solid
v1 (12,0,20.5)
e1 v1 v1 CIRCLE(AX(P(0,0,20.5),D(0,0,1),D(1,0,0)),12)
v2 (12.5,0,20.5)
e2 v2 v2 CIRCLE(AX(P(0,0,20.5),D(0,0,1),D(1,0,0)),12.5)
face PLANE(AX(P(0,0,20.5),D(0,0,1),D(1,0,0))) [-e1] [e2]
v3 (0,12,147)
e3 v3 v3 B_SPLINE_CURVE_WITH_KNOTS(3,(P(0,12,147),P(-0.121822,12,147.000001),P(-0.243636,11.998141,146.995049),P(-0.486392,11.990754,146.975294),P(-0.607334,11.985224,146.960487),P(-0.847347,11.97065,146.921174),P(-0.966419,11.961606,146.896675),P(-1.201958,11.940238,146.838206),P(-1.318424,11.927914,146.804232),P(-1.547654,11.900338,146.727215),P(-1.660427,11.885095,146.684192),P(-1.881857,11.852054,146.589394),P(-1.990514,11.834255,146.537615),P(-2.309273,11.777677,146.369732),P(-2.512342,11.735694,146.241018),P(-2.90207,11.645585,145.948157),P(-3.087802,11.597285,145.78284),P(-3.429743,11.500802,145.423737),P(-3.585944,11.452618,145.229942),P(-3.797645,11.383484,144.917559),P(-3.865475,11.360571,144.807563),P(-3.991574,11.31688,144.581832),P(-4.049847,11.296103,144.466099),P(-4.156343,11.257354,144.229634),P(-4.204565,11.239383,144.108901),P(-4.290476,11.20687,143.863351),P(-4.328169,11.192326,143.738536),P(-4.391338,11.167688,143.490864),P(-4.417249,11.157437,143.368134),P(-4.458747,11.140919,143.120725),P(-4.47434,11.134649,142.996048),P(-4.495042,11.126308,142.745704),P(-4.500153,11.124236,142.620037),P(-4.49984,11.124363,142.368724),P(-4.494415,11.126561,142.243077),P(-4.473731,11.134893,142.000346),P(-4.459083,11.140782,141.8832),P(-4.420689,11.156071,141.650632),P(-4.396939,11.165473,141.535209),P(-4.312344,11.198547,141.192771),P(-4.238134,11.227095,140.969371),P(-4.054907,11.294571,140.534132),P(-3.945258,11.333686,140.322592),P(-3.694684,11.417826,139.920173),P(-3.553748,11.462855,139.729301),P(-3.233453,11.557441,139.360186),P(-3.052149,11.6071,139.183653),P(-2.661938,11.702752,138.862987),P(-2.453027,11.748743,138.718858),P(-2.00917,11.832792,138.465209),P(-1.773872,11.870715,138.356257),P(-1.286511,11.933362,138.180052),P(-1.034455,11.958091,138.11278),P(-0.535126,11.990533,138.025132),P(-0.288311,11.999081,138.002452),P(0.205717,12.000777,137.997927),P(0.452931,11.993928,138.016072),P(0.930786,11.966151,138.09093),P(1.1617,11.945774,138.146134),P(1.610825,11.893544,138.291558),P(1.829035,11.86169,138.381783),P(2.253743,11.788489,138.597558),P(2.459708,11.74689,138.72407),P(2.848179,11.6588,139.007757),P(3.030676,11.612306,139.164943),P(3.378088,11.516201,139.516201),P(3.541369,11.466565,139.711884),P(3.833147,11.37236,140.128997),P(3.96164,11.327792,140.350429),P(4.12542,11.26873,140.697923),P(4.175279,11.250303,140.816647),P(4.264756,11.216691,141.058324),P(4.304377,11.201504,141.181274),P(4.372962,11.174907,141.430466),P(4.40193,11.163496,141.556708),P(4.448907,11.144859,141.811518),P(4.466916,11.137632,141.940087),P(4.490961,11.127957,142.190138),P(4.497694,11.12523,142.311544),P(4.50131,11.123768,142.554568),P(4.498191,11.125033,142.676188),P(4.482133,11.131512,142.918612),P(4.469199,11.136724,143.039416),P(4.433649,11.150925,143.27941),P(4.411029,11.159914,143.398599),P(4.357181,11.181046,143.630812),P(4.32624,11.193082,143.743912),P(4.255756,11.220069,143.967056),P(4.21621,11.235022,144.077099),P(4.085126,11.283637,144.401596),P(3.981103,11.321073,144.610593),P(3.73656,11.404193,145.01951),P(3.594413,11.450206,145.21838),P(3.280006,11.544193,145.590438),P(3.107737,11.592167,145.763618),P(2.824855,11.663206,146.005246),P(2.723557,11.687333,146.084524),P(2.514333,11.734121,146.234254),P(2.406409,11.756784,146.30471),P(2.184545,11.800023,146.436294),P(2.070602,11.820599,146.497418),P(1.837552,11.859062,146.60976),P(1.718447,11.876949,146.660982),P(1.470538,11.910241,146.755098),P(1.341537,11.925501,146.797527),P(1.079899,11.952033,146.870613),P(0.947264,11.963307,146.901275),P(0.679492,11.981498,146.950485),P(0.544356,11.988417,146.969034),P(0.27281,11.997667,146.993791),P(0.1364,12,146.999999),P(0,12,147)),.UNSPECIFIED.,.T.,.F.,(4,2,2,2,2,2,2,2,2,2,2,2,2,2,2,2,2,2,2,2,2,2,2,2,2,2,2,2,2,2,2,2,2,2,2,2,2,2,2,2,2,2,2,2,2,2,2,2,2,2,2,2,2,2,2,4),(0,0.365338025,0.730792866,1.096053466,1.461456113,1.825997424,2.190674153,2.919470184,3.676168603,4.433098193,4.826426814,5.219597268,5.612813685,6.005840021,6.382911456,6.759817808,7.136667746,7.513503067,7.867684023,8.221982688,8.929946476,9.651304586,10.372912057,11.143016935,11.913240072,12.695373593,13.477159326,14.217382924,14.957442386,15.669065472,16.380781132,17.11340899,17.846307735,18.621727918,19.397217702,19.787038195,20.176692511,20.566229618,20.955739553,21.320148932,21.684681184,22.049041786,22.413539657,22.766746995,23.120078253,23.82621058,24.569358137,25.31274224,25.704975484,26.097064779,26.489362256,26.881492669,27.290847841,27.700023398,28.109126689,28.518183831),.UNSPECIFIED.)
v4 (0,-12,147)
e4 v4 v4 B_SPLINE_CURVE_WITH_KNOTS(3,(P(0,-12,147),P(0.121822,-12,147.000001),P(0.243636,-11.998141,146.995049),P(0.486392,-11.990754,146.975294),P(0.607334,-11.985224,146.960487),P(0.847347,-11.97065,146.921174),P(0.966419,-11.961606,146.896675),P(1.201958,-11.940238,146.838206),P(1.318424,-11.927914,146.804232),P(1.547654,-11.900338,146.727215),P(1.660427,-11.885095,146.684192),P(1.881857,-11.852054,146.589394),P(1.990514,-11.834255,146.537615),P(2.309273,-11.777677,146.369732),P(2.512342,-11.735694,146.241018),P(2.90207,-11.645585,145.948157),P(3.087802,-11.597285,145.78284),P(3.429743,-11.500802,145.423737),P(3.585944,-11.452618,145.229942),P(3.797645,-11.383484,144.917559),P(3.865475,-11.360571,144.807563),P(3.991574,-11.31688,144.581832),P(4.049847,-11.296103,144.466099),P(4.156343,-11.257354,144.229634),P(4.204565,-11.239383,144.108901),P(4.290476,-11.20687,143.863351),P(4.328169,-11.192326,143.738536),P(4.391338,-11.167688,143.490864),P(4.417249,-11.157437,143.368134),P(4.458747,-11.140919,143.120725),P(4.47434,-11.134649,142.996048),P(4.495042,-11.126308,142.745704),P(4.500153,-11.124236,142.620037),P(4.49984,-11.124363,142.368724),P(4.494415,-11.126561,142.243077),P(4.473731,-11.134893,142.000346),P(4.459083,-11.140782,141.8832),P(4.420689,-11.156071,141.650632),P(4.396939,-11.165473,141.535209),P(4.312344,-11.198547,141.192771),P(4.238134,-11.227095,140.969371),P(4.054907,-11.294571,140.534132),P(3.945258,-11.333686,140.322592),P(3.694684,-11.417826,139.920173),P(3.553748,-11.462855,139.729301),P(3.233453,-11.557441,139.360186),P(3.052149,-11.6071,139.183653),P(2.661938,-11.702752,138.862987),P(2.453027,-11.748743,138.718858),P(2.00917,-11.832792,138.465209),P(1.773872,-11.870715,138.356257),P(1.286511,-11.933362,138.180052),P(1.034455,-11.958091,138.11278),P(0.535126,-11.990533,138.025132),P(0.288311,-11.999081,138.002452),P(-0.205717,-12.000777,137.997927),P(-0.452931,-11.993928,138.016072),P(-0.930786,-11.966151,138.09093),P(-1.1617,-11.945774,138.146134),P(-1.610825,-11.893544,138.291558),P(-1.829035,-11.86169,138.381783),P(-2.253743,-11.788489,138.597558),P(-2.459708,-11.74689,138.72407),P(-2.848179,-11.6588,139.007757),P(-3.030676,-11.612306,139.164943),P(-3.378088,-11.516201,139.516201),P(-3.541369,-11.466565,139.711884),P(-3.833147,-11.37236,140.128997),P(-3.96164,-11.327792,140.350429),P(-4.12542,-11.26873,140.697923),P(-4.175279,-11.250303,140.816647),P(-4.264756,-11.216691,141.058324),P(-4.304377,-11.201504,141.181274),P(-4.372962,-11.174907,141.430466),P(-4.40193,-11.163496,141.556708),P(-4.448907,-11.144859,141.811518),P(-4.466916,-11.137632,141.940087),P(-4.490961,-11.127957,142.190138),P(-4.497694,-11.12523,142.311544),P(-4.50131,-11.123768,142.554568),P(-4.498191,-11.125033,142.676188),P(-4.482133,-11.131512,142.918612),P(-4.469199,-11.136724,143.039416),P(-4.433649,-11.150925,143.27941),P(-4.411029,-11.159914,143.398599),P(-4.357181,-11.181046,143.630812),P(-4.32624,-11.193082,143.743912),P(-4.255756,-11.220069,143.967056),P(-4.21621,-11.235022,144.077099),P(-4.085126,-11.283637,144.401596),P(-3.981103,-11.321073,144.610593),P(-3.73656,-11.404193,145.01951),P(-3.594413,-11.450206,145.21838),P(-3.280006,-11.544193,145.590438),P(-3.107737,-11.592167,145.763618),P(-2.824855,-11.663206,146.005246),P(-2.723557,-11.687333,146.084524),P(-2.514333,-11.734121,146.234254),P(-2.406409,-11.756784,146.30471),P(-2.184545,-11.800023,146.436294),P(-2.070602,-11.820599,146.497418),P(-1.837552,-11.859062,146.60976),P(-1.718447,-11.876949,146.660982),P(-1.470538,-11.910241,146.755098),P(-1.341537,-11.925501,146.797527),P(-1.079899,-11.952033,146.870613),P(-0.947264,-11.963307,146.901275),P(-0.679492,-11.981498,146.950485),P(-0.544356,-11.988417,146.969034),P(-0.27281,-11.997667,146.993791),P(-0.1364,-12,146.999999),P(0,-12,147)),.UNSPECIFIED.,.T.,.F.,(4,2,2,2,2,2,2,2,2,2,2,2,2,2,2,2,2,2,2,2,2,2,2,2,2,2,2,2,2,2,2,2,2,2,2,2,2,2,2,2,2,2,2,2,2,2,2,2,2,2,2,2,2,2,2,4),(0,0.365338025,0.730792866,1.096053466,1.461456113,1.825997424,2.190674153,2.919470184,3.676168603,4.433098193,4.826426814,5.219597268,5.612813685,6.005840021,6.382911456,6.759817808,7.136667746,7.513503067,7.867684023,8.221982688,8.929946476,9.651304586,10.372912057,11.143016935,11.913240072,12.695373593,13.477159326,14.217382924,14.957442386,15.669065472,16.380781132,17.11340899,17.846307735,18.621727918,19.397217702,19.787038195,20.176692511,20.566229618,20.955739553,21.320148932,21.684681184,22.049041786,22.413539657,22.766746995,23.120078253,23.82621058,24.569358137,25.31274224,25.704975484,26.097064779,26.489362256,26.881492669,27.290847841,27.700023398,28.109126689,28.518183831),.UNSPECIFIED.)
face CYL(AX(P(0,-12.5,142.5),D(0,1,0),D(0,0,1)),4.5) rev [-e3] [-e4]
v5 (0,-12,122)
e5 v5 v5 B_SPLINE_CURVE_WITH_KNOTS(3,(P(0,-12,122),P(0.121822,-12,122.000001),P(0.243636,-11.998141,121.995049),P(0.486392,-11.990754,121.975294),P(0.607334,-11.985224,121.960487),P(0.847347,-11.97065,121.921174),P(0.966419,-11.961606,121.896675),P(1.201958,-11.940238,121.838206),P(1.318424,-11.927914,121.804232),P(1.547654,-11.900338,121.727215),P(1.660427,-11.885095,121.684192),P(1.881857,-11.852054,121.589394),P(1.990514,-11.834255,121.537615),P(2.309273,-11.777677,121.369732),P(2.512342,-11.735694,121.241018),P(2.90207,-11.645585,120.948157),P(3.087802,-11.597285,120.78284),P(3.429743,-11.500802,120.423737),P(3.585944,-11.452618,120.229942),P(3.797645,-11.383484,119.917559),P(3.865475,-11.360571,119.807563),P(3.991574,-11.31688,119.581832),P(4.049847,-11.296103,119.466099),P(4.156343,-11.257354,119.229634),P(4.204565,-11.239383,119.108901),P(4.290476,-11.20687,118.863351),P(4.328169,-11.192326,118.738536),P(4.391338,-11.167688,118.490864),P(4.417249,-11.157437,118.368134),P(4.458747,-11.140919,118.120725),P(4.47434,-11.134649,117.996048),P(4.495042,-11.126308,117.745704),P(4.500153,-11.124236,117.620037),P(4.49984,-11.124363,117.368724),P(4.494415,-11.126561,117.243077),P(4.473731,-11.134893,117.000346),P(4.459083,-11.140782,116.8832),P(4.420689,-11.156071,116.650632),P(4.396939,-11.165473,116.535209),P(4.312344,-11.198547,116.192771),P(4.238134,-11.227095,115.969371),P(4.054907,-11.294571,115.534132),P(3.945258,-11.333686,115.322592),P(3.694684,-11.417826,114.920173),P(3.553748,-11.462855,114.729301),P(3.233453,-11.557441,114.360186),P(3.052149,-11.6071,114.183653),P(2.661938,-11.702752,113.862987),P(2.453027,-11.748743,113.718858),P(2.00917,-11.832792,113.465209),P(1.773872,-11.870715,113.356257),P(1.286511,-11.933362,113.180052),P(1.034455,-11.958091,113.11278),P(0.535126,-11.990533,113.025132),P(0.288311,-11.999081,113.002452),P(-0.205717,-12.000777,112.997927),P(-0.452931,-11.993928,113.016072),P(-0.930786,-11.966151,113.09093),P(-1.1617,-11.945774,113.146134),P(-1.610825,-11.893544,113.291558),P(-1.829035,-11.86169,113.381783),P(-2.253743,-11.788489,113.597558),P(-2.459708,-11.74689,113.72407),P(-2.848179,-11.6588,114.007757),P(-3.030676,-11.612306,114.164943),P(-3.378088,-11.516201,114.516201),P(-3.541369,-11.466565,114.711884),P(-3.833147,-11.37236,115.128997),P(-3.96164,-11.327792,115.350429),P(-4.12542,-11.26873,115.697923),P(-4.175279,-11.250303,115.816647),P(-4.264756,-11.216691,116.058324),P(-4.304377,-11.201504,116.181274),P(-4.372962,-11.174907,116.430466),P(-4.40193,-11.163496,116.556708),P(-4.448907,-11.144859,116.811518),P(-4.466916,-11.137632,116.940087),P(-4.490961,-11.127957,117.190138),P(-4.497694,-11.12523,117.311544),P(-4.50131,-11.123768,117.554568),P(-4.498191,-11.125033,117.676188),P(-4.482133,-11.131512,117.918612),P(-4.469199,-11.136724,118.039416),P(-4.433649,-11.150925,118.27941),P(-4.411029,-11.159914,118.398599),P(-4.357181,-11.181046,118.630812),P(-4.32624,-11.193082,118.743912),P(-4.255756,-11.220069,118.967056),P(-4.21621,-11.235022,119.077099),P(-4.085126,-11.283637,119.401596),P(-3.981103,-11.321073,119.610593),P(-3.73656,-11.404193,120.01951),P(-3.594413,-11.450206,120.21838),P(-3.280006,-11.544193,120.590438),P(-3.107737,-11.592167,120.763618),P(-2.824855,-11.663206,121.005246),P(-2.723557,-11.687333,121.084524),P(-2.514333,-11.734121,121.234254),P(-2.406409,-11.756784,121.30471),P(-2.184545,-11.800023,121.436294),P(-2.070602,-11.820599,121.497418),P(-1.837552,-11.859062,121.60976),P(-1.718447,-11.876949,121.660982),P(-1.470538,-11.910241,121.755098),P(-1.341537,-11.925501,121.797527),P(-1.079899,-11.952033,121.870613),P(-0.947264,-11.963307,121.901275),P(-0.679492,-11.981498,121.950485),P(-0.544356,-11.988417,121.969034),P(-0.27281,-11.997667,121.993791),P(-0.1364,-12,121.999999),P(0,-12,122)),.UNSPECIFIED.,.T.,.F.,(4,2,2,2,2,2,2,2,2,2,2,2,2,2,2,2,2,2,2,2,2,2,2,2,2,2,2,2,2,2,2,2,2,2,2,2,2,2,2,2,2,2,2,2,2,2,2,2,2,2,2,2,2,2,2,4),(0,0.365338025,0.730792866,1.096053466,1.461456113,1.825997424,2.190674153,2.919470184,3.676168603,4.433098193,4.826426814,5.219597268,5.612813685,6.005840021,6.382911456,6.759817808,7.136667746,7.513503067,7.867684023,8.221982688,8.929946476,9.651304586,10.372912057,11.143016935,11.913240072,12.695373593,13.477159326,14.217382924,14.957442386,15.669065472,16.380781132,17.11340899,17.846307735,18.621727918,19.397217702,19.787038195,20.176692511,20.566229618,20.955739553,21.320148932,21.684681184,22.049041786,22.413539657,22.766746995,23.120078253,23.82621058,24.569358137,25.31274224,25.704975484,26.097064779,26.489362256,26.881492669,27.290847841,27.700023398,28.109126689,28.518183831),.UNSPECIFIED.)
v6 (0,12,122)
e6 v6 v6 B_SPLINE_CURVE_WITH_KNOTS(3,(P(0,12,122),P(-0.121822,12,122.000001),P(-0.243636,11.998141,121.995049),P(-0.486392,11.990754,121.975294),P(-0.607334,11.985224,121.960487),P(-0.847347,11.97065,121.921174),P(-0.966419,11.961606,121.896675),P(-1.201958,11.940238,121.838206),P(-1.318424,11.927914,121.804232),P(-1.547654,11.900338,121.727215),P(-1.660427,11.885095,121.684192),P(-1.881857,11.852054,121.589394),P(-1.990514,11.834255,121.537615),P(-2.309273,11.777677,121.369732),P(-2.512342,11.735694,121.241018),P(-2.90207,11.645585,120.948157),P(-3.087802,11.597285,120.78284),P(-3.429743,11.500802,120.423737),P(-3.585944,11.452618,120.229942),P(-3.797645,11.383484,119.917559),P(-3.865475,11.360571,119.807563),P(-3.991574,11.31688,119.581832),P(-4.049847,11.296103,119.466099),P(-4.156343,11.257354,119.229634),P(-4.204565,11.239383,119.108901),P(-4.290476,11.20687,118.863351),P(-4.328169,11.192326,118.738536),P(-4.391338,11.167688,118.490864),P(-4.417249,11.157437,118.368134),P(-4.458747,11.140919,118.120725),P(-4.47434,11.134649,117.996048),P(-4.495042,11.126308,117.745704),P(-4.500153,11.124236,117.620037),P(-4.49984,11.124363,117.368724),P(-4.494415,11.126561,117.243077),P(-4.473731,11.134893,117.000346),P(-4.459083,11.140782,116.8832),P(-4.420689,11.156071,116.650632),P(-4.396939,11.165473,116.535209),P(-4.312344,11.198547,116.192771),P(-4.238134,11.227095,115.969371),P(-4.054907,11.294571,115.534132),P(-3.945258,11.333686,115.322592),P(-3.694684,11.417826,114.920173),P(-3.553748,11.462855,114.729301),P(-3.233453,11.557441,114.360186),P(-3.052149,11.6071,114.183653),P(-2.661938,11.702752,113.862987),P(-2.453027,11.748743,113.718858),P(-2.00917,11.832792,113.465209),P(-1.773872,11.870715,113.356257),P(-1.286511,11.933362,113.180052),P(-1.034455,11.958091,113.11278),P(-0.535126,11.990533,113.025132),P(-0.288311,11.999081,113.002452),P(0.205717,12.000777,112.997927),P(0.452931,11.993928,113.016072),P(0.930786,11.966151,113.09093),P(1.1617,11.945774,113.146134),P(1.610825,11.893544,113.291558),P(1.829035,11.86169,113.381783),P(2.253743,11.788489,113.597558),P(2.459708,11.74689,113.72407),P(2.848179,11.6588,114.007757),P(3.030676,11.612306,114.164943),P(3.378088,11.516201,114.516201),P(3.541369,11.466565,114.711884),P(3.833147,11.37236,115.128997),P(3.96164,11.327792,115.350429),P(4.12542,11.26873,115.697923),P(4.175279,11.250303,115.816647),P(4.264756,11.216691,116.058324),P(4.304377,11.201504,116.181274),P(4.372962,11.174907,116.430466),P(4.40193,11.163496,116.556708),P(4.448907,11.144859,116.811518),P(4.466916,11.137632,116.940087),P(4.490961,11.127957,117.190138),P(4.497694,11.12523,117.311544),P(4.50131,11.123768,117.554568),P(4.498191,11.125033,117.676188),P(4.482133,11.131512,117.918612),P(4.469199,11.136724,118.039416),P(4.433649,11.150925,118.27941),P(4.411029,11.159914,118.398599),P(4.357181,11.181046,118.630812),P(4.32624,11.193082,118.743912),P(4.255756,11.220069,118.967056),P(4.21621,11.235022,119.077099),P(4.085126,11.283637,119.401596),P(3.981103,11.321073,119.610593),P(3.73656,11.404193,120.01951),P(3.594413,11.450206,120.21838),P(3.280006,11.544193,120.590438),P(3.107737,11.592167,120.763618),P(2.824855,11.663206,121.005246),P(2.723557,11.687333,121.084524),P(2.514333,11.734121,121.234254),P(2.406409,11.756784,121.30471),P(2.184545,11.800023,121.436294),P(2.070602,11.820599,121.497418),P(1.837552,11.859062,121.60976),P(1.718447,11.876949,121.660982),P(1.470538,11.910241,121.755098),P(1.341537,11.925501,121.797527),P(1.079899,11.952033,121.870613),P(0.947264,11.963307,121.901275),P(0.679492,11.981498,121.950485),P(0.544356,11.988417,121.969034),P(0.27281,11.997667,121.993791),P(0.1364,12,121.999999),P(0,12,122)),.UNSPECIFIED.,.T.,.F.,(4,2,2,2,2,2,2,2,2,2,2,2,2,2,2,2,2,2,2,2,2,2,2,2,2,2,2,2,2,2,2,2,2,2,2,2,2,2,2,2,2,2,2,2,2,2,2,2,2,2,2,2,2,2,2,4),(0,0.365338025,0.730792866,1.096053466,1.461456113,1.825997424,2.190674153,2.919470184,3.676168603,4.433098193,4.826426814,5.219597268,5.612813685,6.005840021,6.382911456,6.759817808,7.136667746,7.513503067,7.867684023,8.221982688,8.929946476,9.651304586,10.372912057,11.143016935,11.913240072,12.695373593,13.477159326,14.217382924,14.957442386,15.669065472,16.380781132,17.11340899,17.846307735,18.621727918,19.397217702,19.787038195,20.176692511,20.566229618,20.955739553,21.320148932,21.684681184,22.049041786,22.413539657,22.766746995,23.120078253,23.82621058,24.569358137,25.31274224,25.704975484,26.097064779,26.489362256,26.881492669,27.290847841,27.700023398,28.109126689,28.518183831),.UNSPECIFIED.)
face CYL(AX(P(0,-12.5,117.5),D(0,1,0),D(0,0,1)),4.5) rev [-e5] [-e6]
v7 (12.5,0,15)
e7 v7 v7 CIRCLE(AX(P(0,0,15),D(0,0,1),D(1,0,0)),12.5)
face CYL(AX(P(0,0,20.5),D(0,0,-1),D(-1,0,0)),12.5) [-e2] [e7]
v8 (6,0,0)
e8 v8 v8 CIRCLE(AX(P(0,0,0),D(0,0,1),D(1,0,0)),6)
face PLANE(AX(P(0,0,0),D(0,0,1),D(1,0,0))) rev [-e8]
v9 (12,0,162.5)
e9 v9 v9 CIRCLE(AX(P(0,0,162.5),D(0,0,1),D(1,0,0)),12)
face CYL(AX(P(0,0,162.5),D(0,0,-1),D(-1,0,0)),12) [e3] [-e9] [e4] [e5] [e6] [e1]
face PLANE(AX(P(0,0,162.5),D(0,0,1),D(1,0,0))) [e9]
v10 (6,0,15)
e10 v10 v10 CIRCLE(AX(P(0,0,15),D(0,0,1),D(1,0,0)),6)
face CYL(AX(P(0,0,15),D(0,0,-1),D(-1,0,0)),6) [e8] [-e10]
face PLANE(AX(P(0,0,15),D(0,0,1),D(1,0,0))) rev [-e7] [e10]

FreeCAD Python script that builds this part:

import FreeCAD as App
import Part
import Sketcher

V = App.Vector
Q = App.Units.Quantity

doc = App.newDocument("Part")
body = doc.addObject("PartDesign::Body", "Body")

# Sketch on XY plane
sketch1 = body.newObject("Sketcher::SketchObject", "Sketch")
sketch1.AttachmentSupport = (doc.getObject("XY_Plane"), [""])
sketch1.MapMode = "FlatFace"
sketch1.addGeometry(Part.Circle(V(0, 0, 0), V(0, 0, 1), 6), False)
sketch1.addConstraint(Sketcher.Constraint("Coincident", 0, 3, -1, 1))
sketch1.addConstraint(Sketcher.Constraint("Diameter", 0, Q("12 mm")))
pad1 = body.newObject("PartDesign::Pad", "Pad")
pad1.Profile = sketch1
pad1.Length = 15

# Sketch on XY plane
sketch2 = body.newObject("Sketcher::SketchObject", "Sketch001")
sketch2.AttachmentSupport = (doc.getObject("XY_Plane"), [""])
sketch2.MapMode = "FlatFace"
sketch2.AttachmentOffset = App.Placement(V(0, 0, 15), App.Rotation())
sketch2.addGeometry(Part.Circle(V(0, 0, 0), V(0, 0, 1), 12), False)
sketch2.addConstraint(Sketcher.Constraint("Coincident", 0, 3, -1, 1))
sketch2.addConstraint(Sketcher.Constraint("Diameter", 0, Q("25 mm")))
pad2 = body.newObject("PartDesign::Pad", "Pad001")
pad2.Profile = sketch2
pad2.Length = 5.5

# Sketch on XY plane
sketch3 = body.newObject("Sketcher::SketchObject", "Sketch002")
sketch3.AttachmentSupport = (doc.getObject("XY_Plane"), [""])
sketch3.MapMode = "FlatFace"
sketch3.AttachmentOffset = App.Placement(V(0, 0, 20.5), App.Rotation())
sketch3.addGeometry(Part.Circle(V(0, 0, 0), V(0, 0, 1), 12), False)
sketch3.addConstraint(Sketcher.Constraint("Coincident", 0, 3, -1, 1))
sketch3.addConstraint(Sketcher.Constraint("Diameter", 0, Q("24 mm")))
pad3 = body.newObject("PartDesign::Pad", "Pad002")
pad3.Profile = sketch3
pad3.Length = 142

# Sketch on XZ plane
sketch4 = body.newObject("Sketcher::SketchObject", "Sketch003")
sketch4.AttachmentSupport = (doc.getObject("XZ_Plane"), [""])
sketch4.MapMode = "FlatFace"
sketch4.addGeometry(Part.Circle(V(0, 142.5, 0), V(0, 0, 1), 4.5), False)
sketch4.addConstraint(Sketcher.Constraint("PointOnObject", 0, 3, -2))
sketch4.addConstraint(Sketcher.Constraint("Diameter", 0, Q("9 mm")))
sketch4.addConstraint(Sketcher.Constraint("DistanceY", -1, 1, 0, 3, Q("142.5 mm")))
pocket1 = body.newObject("PartDesign::Pocket", "Pocket")
pocket1.Profile = sketch4
pocket1.Length = 328.917421
pocket1.Midplane = True
doc.recompute()

linearpattern = body.newObject("PartDesign::LinearPattern", "LinearPattern")
linearpattern.Originals = [pocket1]
linearpattern.Direction = (doc.getObject("Z_Axis"), [""])
linearpattern.Mode = "offset"
linearpattern.Offset = 25
linearpattern.Occurrences = 2
linearpattern.Reversed = True
body.Tip = linearpattern

doc.recompute()
